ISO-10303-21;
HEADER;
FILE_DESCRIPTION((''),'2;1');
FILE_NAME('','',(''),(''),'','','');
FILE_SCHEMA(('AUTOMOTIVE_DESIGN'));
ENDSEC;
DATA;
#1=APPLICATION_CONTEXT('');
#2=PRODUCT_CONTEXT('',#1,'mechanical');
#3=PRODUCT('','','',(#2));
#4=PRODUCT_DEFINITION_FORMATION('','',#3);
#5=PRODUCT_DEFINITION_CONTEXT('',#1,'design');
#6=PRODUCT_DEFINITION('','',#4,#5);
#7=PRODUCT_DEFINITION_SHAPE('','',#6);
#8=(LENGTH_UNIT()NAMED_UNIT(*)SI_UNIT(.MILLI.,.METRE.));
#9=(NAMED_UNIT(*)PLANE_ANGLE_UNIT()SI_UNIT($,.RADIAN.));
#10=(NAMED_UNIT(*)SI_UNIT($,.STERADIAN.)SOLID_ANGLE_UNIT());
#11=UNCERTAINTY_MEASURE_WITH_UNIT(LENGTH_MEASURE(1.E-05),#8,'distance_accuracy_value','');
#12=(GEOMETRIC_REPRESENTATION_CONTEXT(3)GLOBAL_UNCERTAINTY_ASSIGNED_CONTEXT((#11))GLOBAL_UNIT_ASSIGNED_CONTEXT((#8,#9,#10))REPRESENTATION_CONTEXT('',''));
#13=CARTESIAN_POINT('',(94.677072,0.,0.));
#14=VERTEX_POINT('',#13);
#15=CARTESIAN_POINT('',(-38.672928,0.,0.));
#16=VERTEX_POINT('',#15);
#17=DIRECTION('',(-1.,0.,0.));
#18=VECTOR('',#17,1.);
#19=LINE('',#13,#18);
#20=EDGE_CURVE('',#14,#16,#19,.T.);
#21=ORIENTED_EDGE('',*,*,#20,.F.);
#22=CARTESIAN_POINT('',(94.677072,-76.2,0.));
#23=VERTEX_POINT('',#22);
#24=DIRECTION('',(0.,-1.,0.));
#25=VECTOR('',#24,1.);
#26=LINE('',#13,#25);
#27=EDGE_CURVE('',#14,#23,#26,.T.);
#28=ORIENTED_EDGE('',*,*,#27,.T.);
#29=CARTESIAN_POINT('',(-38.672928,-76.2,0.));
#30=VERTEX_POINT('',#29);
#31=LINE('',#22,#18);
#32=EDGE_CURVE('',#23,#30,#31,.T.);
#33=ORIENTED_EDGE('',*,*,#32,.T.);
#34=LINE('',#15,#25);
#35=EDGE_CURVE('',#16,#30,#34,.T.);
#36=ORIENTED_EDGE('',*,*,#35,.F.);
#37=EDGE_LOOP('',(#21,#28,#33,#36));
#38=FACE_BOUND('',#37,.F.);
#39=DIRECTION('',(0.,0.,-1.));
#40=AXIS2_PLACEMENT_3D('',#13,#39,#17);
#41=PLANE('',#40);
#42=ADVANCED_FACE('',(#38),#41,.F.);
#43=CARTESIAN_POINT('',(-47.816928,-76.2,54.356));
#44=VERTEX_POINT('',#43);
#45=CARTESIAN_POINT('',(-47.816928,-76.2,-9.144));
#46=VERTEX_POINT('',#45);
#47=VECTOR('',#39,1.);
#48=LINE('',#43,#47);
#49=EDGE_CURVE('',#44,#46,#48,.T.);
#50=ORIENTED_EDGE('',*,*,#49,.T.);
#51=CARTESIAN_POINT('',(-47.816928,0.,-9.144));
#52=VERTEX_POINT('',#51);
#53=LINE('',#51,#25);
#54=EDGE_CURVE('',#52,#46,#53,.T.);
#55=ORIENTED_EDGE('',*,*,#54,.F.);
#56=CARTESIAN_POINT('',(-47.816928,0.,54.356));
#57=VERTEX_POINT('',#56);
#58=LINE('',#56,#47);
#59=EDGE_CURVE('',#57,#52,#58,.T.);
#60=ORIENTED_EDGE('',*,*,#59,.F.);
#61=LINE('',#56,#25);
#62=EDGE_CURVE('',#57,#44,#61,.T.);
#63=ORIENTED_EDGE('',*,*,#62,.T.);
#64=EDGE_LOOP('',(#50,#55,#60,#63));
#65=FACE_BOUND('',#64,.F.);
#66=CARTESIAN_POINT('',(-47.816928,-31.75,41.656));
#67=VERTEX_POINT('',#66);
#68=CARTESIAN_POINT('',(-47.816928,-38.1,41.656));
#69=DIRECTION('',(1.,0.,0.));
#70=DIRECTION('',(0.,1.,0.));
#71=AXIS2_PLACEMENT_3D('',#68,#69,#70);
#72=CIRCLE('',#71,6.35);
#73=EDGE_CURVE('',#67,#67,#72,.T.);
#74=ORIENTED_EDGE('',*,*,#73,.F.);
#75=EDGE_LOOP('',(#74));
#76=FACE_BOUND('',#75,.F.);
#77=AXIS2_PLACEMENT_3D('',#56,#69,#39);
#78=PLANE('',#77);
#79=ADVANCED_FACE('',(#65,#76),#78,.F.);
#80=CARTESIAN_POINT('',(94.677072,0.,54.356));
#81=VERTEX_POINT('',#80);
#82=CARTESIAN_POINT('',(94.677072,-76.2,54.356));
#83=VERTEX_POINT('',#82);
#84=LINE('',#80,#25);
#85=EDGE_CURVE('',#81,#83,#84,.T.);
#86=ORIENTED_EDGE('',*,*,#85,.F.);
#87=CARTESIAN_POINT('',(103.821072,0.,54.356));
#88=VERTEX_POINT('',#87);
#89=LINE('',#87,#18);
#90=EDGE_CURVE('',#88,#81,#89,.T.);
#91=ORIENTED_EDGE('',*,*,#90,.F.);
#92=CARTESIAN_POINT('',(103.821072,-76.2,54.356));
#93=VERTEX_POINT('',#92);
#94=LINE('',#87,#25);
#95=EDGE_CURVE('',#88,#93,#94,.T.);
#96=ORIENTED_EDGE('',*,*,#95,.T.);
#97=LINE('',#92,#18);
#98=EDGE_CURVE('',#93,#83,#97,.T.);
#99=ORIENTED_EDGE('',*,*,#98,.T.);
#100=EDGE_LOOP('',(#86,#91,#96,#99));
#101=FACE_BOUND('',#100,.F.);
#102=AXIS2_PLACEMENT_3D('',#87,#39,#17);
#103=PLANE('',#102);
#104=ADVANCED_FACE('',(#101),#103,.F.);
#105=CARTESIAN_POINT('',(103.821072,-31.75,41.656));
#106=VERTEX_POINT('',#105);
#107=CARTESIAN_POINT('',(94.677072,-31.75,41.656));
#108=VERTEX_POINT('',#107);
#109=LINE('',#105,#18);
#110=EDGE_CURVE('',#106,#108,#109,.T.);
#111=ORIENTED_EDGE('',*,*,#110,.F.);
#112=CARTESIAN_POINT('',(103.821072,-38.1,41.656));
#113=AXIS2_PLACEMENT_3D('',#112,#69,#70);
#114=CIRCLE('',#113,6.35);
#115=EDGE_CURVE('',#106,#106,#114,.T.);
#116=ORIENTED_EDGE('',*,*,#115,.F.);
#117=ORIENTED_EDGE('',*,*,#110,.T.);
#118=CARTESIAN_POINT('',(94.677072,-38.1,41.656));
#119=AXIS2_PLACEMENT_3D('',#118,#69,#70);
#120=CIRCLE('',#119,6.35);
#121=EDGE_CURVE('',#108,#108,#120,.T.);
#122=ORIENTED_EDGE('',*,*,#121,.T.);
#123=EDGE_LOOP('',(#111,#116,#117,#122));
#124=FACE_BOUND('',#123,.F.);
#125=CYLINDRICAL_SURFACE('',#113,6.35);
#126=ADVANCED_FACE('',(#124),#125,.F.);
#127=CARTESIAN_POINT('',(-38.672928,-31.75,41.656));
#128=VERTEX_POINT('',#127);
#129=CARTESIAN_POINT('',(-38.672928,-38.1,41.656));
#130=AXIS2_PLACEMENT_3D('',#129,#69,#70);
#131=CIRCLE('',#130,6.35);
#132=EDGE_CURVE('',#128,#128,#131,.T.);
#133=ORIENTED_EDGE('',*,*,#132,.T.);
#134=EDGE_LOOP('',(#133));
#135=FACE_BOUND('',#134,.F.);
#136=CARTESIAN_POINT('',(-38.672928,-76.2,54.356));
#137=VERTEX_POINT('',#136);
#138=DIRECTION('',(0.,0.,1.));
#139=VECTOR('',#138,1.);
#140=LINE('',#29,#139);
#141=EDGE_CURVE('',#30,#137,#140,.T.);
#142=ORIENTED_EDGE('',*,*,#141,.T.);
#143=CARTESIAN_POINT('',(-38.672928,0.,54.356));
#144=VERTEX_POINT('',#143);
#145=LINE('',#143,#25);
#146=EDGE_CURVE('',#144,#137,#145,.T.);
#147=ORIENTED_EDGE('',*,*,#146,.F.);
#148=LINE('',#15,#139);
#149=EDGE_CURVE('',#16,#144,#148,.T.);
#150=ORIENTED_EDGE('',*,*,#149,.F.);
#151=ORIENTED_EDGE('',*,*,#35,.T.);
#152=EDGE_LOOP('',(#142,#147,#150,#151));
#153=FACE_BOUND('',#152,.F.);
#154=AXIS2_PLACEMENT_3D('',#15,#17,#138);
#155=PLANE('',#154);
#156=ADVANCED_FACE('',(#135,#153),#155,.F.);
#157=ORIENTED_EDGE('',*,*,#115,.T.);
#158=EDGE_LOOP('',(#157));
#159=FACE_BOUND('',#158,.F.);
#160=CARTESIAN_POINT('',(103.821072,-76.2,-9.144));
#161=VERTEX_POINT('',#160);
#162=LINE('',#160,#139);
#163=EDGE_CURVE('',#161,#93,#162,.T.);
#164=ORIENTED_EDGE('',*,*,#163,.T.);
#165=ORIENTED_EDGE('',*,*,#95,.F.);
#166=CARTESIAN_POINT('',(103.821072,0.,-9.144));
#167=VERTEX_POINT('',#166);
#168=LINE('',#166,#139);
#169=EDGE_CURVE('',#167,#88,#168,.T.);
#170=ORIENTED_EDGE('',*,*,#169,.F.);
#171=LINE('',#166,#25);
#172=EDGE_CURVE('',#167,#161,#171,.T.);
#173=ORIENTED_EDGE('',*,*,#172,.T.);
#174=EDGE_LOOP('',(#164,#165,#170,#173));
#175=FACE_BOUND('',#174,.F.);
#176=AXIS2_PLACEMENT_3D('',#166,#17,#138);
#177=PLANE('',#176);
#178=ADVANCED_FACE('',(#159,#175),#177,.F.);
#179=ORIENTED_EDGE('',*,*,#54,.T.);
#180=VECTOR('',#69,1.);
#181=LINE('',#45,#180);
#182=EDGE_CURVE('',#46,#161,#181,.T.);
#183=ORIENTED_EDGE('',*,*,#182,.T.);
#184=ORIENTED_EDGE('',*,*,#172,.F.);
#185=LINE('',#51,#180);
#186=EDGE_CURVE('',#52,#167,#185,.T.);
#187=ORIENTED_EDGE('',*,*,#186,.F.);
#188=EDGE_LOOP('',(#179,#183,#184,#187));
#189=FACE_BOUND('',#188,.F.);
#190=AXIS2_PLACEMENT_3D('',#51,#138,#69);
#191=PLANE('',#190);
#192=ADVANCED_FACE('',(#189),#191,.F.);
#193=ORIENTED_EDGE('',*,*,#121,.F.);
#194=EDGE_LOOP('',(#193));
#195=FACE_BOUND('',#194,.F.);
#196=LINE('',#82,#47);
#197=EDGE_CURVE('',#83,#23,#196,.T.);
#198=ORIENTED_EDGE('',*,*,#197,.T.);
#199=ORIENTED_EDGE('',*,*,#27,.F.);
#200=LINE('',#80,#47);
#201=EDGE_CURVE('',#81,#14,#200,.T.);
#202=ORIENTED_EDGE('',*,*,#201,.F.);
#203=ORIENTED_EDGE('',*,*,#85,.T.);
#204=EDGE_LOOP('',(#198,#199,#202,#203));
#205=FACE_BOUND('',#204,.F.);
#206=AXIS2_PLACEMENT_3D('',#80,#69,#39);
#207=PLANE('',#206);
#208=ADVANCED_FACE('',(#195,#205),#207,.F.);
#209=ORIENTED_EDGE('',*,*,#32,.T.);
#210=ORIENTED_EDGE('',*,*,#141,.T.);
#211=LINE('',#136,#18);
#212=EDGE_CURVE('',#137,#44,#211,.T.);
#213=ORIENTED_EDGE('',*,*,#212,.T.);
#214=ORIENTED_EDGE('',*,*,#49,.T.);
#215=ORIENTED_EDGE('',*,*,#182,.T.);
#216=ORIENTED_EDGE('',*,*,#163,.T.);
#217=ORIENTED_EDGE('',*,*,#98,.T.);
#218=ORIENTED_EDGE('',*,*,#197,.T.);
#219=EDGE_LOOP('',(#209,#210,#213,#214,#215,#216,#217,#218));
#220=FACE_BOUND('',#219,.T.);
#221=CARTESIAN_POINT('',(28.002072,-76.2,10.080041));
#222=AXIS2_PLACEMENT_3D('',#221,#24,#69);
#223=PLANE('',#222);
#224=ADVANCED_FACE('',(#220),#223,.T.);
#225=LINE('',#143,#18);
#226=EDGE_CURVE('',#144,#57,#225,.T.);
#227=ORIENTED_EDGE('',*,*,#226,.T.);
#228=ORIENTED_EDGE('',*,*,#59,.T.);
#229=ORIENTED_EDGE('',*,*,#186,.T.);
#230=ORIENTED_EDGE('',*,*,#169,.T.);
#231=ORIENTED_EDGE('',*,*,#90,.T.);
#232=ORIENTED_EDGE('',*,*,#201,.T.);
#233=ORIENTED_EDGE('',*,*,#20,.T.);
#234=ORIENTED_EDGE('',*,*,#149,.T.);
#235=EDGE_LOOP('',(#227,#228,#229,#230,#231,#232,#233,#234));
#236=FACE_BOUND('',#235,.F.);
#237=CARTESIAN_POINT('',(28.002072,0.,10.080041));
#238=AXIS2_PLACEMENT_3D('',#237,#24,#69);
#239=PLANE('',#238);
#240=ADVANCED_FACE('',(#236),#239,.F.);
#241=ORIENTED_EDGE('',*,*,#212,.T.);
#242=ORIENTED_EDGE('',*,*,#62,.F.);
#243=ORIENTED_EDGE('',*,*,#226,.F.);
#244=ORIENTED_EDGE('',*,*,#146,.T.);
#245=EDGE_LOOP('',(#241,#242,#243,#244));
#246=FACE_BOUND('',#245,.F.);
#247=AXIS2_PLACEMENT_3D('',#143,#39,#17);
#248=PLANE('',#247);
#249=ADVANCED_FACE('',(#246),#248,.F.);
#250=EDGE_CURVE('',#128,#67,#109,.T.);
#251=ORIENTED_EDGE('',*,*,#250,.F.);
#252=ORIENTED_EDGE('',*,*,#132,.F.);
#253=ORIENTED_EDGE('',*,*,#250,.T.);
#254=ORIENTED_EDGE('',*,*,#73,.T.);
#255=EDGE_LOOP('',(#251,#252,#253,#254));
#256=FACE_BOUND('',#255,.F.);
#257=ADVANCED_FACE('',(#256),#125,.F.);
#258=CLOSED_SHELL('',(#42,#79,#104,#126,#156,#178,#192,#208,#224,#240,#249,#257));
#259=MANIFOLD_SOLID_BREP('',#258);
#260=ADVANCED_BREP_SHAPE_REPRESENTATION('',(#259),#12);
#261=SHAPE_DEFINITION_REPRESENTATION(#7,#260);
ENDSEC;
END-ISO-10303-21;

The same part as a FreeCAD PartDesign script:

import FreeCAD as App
import Part
import Sketcher
Q = App.Units.Quantity


def add_polygon(sketch, points):
    """Adds a closed chain of lines whose ends are joined by coincident constraints."""
    first, n = sketch.GeometryCount, len(points)
    for a, b in zip(points, points[1:] + points[:1]):
        sketch.addGeometry(Part.LineSegment(App.Vector(*a, 0), App.Vector(*b, 0)), False)
    for i in range(n):
        sketch.addConstraint(Sketcher.Constraint("Coincident", first + i, 2, first + (i + 1) % n, 1))

doc = App.newDocument("Part")
params = doc.addObject("Spreadsheet::Sheet", "Params")
for row, (alias, value) in enumerate([
    ("sketch1_height", "2.5 in"),
    ("sketch1_width", "5.25 in"),
    ("sketch1_width2", "0.36 in"),
    ("sketch1_height2", "2.14 in"),
    ("pad1_length", "3 in"),
    ("sketch2_diameter", "0.5 in"),
], start=1):
    params.set(f"A{row}", alias)
    params.set(f"B{row}", "=" + value)
    params.setAlias(f"B{row}", alias)

body = doc.addObject("PartDesign::Body", "Body")

sketch1 = doc.addObject("Sketcher::SketchObject", "Sketch")
body.addObject(sketch1)
sketch1.AttachmentSupport = (doc.XZ_Plane, [""])
sketch1.MapMode = "FlatFace"
add_polygon(sketch1, [(94.677072, 0), (-38.672928, 0), (-38.672928, 54.356), (-47.816928, 54.356), (-47.816928, -9.144), (103.821072, -9.144), (103.821072, 54.356), (94.677072, 54.356)])
sketch1.addConstraint([
    Sketcher.Constraint("Horizontal", 0),
    Sketcher.Constraint("Vertical", 1),
    Sketcher.Constraint("Horizontal", 2),
    Sketcher.Constraint("Vertical", 3),
    Sketcher.Constraint("Horizontal", 4),
    Sketcher.Constraint("Vertical", 5),
    Sketcher.Constraint("Horizontal", 6),
    Sketcher.Constraint("Vertical", 7),
    Sketcher.Constraint("PointOnObject", 0, 2, -1),
    Sketcher.Constraint("Horizontal", 2, 2, 5, 2),
    Sketcher.Constraint("Equal", 2, 6),
    Sketcher.Constraint("DistanceY", 3, 2, 3, 1, Q("2.5 in")),
    Sketcher.Constraint("DistanceX", 0, 2, 0, 1, Q("5.25 in")),
    Sketcher.Constraint("DistanceX", 2, 2, 2, 1, Q("0.36 in")),
    Sketcher.Constraint("DistanceY", 1, 1, 1, 2, Q("2.14 in")),
    Sketcher.Constraint("DistanceX", -1, 1, 4, 2, 103.821072),
])
sketch1.setExpression("Constraints[19]", "Params.sketch1_height")
sketch1.setExpression("Constraints[20]", "Params.sketch1_width")
sketch1.setExpression("Constraints[21]", "Params.sketch1_width2")
sketch1.setExpression("Constraints[22]", "Params.sketch1_height2")
pad1 = doc.addObject("PartDesign::Pad", "Pad")
body.addObject(pad1)
pad1.Profile = sketch1
pad1.setExpression("Length", "Params.pad1_length")

sketch2 = doc.addObject("Sketcher::SketchObject", "Sketch001")
body.addObject(sketch2)
sketch2.AttachmentSupport = (doc.YZ_Plane, [""])
sketch2.MapMode = "FlatFace"
sketch2.AttachmentOffset = App.Placement(App.Vector(0, 0, 103.821072), App.Rotation())
sketch2.addGeometry(Part.Circle(App.Vector(-38.1, 41.656, 0), App.Vector(0, 0, 1), 6.35), False)
sketch2.addConstraint([
    Sketcher.Constraint("Diameter", 0, Q("0.5 in")),
    Sketcher.Constraint("DistanceX", 0, 3, -1, 1, Q("1.5 in")),
    Sketcher.Constraint("DistanceY", -1, 1, 0, 3, Q("1.64 in")),
])
sketch2.setExpression("Constraints[0]", "Params.sketch2_diameter")
pocket1 = doc.addObject("PartDesign::Pocket", "Pocket")
body.addObject(pocket1)
pocket1.Profile = sketch2
pocket1.Type = "ThroughAll"

doc.recompute()
